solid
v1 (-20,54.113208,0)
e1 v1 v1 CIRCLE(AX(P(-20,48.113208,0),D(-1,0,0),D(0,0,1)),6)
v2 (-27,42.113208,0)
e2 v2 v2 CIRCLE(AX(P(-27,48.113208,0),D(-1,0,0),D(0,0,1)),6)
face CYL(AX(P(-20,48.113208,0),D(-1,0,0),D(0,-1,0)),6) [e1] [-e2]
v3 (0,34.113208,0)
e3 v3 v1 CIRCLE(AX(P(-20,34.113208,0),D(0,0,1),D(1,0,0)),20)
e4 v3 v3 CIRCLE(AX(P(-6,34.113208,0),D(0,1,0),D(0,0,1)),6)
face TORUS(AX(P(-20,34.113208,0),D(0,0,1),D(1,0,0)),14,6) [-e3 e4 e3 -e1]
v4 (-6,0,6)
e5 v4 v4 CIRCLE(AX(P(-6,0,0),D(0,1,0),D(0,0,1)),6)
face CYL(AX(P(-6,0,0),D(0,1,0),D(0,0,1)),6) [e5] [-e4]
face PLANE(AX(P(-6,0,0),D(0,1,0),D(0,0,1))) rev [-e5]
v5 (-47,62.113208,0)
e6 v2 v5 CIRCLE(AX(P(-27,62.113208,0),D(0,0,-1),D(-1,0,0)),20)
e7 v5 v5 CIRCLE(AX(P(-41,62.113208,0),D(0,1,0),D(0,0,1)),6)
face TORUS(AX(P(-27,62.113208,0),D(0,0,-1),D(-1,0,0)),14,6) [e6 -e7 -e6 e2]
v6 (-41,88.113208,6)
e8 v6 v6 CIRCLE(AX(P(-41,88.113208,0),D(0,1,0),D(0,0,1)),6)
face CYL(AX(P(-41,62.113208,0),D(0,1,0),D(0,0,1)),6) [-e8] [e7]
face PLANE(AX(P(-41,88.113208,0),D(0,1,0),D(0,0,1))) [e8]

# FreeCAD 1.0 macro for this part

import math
import FreeCAD as App
import Part
import Sketcher
Q = App.Units.Quantity

doc = App.newDocument("Part")
params = doc.addObject("Spreadsheet::Sheet", "Params")
for row, (alias, value) in enumerate([
    ("sketch1_diameter", "12 mm"),
    ("sketch2_radius", "14 mm"),
    ("sketch2_width", "7 mm"),
    ("sketch2_height", "26 mm"),
], start=1):
    params.set(f"A{row}", alias)
    params.set(f"B{row}", "=" + value)
    params.setAlias(f"B{row}", alias)

body = doc.addObject("PartDesign::Body", "Body")

sketch1 = doc.addObject("Sketcher::SketchObject", "Sketch")
body.addObject(sketch1)
sketch1.AttachmentSupport = (doc.XZ_Plane, [""])
sketch1.MapMode = "FlatFace"
sketch1.addGeometry(Part.Circle(App.Vector(-6, 0, 0), App.Vector(0, 0, 1), 6), False)
sketch1.addConstraint([
    Sketcher.Constraint("PointOnObject", 0, 3, -1),
    Sketcher.Constraint("Diameter", 0, Q("12 mm")),
    Sketcher.Constraint("DistanceX", 0, 3, -1, 1, Q("6 mm")),
])
sketch1.setExpression("Constraints[1]", "Params.sketch1_diameter")

sketch2 = doc.addObject("Sketcher::SketchObject", "Sketch001")
body.addObject(sketch2)
sketch2.AttachmentSupport = (doc.XY_Plane, [""])
sketch2.MapMode = "FlatFace"
sketch2.addGeometry([
    Part.LineSegment(App.Vector(-6, 0, 0), App.Vector(-6, 34.113208, 0)),
    Part.ArcOfCircle(Part.Circle(App.Vector(-20, 34.113208, 0), App.Vector(0, 0, 1), 14), math.radians(0), math.radians(90)),
    Part.LineSegment(App.Vector(-20, 48.113208, 0), App.Vector(-27, 48.113208, 0)),
    Part.ArcOfCircle(Part.Circle(App.Vector(-27, 62.113208, 0), App.Vector(0, 0, 1), 14), math.radians(180), math.radians(270)),
    Part.LineSegment(App.Vector(-41, 62.113208, 0), App.Vector(-41, 88.113208, 0)),
], False)
sketch2.addConstraint([
    Sketcher.Constraint("Tangent", 0, 2, 1, 1),
    Sketcher.Constraint("Tangent", 1, 2, 2, 1),
    Sketcher.Constraint("Tangent", 2, 2, 3, 2),
    Sketcher.Constraint("Tangent", 3, 1, 4, 1),
    Sketcher.Constraint("Vertical", 0),
    Sketcher.Constraint("Horizontal", 2),
    Sketcher.Constraint("Vertical", 4),
    Sketcher.Constraint("Equal", 1, 3),
    Sketcher.Constraint("PointOnObject", 0, 1, -1),
    Sketcher.Constraint("Radius", 1, Q("14 mm")),
    Sketcher.Constraint("DistanceX", 2, 2, 2, 1, Q("7 mm")),
    Sketcher.Constraint("DistanceY", 4, 1, 4, 2, Q("26 mm")),
    Sketcher.Constraint("DistanceX", 1, 3, -1, 1, Q("20 mm")),
    Sketcher.Constraint("DistanceY", 0, 1, 0, 2, Q("34.113208 mm")),
])
sketch2.setExpression("Constraints[9]", "Params.sketch2_radius")
sketch2.setExpression("Constraints[10]", "Params.sketch2_width")
sketch2.setExpression("Constraints[11]", "Params.sketch2_height")
doc.recompute()

additivepipe = doc.addObject("PartDesign::AdditivePipe", "AdditivePipe")
body.addObject(additivepipe)
additivepipe.Profile = sketch1
additivepipe.Spine = (sketch2, ["Edge1", "Edge2", "Edge3", "Edge4", "Edge5"])

doc.recompute()
